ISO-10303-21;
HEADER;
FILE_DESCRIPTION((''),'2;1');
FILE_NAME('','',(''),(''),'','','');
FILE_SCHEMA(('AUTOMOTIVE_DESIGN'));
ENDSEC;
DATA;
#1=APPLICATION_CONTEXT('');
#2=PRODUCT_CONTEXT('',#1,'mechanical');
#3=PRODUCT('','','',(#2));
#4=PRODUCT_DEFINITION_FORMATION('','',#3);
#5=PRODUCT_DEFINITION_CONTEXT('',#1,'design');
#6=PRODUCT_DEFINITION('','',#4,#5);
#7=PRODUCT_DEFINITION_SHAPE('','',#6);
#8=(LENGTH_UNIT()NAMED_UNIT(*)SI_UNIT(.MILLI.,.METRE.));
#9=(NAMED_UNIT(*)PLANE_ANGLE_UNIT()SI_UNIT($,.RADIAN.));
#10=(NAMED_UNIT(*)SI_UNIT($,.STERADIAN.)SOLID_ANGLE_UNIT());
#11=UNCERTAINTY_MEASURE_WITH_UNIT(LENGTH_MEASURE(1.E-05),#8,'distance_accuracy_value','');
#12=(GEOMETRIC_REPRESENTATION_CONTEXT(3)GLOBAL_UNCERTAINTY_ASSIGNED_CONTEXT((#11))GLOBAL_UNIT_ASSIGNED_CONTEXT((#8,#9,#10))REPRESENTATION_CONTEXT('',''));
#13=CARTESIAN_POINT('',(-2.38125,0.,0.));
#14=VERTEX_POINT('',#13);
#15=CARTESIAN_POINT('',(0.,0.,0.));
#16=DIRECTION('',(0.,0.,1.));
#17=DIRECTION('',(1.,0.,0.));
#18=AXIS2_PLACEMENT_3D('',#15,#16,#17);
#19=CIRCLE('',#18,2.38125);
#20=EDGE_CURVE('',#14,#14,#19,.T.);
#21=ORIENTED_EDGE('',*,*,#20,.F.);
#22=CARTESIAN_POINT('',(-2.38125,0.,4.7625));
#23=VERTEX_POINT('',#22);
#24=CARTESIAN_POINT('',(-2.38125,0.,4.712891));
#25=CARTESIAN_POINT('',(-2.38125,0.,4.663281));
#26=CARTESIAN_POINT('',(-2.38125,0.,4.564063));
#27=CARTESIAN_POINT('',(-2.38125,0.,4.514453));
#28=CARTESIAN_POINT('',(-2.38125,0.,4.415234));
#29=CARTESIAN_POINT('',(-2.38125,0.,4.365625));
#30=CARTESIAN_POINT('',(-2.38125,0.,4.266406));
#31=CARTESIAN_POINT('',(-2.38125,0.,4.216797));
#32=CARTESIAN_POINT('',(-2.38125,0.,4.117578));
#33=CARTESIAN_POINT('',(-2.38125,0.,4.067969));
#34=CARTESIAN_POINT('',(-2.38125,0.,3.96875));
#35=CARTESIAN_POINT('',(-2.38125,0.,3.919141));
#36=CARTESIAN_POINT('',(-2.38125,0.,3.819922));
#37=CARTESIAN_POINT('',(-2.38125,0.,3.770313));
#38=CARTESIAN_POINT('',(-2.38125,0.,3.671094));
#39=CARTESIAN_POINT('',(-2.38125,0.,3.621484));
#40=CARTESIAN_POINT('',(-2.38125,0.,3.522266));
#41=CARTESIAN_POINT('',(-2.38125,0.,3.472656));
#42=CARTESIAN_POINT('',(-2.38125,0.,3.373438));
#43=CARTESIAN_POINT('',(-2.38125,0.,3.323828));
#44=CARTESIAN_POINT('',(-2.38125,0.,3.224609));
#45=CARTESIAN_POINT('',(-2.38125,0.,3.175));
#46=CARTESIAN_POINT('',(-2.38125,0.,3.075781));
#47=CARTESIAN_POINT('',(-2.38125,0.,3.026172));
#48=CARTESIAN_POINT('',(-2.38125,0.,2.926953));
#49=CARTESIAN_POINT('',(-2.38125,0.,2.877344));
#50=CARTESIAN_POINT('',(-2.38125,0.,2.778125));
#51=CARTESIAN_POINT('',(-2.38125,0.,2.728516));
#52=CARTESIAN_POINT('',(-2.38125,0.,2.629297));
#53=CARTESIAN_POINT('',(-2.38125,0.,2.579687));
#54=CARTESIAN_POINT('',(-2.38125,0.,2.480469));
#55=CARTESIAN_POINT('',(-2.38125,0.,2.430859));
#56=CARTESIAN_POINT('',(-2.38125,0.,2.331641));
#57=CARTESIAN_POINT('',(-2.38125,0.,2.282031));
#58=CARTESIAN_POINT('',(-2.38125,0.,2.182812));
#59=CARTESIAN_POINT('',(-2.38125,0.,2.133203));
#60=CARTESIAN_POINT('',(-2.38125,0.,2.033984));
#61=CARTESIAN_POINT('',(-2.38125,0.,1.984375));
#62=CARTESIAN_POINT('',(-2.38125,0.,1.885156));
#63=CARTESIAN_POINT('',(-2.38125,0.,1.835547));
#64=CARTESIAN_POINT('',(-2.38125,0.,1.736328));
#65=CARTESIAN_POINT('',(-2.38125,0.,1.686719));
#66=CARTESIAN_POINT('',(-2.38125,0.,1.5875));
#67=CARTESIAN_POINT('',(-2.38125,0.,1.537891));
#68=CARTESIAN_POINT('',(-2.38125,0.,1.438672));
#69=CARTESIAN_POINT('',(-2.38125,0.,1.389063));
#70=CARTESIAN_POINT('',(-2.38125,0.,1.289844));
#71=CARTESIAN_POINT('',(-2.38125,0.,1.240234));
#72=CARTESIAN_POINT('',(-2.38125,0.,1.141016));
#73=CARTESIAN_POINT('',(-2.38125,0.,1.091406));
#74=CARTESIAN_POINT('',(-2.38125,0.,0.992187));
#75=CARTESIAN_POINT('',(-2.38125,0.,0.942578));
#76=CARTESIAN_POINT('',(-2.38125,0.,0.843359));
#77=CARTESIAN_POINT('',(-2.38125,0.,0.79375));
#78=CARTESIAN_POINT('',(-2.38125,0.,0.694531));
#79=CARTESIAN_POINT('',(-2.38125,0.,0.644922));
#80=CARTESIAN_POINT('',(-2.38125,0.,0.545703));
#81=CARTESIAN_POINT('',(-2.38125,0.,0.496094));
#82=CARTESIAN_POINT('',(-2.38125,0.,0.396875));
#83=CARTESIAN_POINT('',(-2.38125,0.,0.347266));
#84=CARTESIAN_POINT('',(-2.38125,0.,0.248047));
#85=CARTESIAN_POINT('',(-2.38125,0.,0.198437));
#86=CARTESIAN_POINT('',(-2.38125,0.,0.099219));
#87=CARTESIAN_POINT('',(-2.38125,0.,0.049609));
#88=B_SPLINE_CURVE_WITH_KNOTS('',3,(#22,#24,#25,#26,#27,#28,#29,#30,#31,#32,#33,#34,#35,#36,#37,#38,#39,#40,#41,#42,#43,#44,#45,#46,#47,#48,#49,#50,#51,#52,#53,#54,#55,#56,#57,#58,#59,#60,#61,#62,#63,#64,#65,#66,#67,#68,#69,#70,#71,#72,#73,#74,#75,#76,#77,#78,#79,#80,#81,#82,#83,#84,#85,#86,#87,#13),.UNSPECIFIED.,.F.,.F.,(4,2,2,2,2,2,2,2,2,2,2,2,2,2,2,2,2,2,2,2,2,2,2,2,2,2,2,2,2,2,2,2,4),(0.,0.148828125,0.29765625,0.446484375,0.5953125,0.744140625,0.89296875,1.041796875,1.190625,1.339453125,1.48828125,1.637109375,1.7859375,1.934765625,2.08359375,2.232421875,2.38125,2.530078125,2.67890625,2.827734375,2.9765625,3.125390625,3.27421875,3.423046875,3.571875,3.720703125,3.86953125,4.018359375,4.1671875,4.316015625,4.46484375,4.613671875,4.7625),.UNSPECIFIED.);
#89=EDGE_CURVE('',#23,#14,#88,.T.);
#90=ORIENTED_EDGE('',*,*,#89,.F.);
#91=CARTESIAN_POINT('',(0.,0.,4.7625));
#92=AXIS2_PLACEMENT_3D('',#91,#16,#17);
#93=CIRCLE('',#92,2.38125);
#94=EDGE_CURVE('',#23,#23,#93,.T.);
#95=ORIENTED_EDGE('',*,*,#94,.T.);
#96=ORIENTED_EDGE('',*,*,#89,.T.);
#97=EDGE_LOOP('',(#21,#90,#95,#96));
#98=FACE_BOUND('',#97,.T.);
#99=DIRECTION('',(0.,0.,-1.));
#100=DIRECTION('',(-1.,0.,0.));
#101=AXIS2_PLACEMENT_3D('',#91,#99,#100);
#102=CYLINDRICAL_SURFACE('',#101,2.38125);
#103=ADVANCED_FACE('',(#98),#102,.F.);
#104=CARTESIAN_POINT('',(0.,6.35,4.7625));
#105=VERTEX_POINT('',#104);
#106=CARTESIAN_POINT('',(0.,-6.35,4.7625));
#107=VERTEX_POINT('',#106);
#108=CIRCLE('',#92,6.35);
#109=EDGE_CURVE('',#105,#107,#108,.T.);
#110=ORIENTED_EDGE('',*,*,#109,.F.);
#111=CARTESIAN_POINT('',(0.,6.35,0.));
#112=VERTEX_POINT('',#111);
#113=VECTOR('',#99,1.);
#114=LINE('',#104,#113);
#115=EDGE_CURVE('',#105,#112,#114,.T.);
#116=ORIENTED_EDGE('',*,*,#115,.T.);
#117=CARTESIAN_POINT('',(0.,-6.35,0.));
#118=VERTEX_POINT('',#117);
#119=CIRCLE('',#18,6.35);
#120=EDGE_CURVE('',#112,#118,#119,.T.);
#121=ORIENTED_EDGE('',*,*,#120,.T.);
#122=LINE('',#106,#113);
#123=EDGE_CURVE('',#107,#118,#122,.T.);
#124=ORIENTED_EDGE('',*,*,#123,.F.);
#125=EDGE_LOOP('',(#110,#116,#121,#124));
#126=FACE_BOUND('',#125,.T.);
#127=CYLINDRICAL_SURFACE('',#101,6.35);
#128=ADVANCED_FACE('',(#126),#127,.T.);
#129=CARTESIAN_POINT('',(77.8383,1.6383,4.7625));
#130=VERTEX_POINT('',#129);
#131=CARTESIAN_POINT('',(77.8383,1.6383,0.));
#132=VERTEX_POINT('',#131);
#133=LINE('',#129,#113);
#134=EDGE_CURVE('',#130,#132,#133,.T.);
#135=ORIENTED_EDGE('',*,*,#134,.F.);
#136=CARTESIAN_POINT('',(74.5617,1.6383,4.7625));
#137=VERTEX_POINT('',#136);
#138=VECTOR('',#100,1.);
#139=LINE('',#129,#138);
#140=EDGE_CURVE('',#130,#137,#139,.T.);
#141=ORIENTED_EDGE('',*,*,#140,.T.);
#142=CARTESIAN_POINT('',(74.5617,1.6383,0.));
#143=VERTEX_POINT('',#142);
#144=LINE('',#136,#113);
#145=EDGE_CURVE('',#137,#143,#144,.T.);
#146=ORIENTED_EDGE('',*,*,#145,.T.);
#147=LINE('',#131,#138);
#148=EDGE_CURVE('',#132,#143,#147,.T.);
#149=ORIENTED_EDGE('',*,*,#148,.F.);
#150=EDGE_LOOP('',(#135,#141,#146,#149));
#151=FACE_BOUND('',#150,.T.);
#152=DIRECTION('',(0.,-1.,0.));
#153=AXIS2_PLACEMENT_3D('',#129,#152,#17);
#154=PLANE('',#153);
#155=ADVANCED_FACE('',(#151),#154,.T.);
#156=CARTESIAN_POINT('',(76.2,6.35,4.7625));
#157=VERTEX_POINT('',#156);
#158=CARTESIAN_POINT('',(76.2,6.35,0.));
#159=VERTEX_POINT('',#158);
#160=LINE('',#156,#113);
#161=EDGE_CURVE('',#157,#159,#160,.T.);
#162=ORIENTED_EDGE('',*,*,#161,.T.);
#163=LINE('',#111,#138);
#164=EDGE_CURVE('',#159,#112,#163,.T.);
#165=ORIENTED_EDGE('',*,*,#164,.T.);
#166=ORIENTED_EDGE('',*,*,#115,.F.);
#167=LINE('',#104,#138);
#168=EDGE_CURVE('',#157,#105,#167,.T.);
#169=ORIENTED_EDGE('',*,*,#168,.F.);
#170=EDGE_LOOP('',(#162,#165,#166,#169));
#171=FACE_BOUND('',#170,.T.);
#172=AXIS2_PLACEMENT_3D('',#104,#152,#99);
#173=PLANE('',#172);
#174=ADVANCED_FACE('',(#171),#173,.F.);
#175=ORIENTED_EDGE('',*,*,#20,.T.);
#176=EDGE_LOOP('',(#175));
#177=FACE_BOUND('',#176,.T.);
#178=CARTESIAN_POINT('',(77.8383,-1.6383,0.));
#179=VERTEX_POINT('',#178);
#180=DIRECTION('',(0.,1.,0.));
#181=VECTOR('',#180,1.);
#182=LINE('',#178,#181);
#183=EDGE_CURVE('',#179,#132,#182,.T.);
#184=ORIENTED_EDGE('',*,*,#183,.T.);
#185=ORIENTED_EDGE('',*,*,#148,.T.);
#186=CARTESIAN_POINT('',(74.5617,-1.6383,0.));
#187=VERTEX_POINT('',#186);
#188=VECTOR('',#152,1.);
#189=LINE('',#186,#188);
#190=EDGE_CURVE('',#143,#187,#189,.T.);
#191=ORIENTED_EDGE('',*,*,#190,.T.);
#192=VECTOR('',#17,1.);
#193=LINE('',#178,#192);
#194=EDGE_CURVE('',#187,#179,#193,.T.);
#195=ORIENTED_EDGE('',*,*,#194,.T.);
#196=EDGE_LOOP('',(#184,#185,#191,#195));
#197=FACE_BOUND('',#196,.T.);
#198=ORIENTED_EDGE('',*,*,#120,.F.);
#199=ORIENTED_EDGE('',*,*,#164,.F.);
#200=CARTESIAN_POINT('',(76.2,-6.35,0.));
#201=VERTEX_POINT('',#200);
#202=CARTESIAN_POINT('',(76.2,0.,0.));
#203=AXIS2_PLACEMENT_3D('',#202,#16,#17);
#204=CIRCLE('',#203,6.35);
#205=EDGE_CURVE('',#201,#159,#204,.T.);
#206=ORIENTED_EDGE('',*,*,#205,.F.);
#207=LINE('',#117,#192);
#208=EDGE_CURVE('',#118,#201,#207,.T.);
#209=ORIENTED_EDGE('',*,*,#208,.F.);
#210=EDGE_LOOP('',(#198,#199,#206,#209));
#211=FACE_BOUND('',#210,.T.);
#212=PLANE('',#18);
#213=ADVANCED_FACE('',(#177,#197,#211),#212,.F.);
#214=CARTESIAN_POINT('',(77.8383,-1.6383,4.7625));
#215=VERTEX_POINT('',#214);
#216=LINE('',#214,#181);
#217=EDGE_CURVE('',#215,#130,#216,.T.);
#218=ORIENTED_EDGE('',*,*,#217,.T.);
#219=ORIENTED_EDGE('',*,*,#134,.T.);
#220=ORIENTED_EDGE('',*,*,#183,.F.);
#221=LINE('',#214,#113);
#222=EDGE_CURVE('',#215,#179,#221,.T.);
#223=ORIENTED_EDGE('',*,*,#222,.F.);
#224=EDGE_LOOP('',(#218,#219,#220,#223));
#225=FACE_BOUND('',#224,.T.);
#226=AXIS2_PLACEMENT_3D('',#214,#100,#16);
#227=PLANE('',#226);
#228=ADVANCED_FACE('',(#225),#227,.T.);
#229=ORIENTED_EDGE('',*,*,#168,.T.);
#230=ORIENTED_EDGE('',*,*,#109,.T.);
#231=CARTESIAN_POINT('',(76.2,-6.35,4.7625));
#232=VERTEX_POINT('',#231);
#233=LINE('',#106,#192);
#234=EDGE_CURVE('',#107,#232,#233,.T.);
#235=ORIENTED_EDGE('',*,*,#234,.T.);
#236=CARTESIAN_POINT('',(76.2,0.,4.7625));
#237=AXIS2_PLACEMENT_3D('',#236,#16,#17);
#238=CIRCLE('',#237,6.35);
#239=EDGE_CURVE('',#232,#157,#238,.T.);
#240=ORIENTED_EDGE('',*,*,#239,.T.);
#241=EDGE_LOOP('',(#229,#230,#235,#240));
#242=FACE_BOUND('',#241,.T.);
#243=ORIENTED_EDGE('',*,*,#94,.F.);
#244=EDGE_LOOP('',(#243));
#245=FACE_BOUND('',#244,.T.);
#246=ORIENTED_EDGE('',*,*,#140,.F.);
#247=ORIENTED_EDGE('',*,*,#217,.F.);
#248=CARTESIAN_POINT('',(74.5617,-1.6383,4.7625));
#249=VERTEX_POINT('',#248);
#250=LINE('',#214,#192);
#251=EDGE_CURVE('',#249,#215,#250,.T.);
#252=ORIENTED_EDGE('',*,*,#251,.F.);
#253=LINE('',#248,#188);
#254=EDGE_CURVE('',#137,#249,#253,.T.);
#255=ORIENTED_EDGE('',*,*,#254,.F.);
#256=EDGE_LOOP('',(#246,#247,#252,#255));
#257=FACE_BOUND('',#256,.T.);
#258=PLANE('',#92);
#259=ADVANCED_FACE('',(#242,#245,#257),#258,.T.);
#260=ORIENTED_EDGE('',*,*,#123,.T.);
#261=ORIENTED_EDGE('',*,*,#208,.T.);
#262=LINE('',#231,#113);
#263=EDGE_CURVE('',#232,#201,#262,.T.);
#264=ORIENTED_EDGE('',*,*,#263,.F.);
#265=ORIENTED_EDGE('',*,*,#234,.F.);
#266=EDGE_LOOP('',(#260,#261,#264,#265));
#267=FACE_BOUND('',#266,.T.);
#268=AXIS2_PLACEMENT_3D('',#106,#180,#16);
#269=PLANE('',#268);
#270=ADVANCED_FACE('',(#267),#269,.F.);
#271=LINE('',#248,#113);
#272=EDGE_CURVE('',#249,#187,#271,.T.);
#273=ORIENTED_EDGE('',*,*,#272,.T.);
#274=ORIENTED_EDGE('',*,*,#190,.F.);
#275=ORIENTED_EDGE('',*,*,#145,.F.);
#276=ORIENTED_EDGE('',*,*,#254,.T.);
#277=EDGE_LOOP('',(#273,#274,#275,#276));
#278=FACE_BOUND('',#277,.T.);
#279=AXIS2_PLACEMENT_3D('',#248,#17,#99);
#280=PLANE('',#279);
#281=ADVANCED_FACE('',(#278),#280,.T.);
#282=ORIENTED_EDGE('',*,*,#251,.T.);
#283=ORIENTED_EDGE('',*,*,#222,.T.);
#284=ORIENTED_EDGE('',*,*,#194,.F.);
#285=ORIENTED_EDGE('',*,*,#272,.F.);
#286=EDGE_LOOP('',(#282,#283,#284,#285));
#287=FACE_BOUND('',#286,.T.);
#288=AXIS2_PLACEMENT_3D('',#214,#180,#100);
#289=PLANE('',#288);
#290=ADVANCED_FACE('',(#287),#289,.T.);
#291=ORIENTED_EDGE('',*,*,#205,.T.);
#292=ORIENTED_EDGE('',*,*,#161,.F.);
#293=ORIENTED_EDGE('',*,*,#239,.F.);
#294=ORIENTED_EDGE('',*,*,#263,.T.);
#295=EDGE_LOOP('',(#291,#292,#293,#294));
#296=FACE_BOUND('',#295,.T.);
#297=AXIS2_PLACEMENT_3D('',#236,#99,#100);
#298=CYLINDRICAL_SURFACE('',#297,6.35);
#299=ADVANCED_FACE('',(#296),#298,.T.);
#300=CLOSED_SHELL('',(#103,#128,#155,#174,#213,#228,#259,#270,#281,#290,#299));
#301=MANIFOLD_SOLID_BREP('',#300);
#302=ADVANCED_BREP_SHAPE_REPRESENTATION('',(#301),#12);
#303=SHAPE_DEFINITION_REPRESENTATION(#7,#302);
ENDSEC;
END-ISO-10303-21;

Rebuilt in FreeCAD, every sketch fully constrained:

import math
import FreeCAD as App
import Part
import Sketcher

V = App.Vector
Q = App.Units.Quantity

doc = App.newDocument("Part")
body = doc.addObject("PartDesign::Body", "Body")

# Sketch on XY plane
sketch1 = body.newObject("Sketcher::SketchObject", "Sketch")
sketch1.AttachmentSupport = (doc.getObject("XY_Plane"), [""])
sketch1.MapMode = "FlatFace"
sketch1.addGeometry([
    Part.LineSegment(V(76.2, 6.3, 0), V(0, 6.3, 0)),  # 0
    Part.ArcOfCircle(Part.Circle(V(0, 0, 0), V(0, 0, 1), 6.3), math.radians(90), math.radians(270)),  # 1
    Part.LineSegment(V(0, -6.3, 0), V(76.2, -6.3, 0)),  # 2
    Part.ArcOfCircle(Part.Circle(V(76.2, 0, 0), V(0, 0, 1), 6.3), math.radians(-90), math.radians(90)),  # 3
    Part.LineSegment(V(74.6, -1.6, 0), V(74.6, 1.6, 0)),  # 4
    Part.LineSegment(V(74.6, 1.6, 0), V(77.8, 1.6, 0)),  # 5
    Part.LineSegment(V(77.8, 1.6, 0), V(77.8, -1.6, 0)),  # 6
    Part.LineSegment(V(77.8, -1.6, 0), V(74.6, -1.6, 0)),  # 7
    Part.Circle(V(0, 0, 0), V(0, 0, 1), 2.4),  # 8
], False)
sketch1.addConstraint([
    Sketcher.Constraint("Tangent", 0, 2, 1, 1),
    Sketcher.Constraint("Tangent", 1, 2, 2, 1),
    Sketcher.Constraint("Tangent", 2, 2, 3, 1),
    Sketcher.Constraint("Tangent", 3, 2, 0, 1),
    Sketcher.Constraint("Coincident", 4, 2, 5, 1),
    Sketcher.Constraint("Coincident", 5, 2, 6, 1),
    Sketcher.Constraint("Coincident", 6, 2, 7, 1),
    Sketcher.Constraint("Coincident", 7, 2, 4, 1),
    Sketcher.Constraint("Horizontal", 0),
    Sketcher.Constraint("Horizontal", 2),
    Sketcher.Constraint("Vertical", 4),
    Sketcher.Constraint("Horizontal", 5),
    Sketcher.Constraint("Vertical", 6),
    Sketcher.Constraint("Horizontal", 7),
    Sketcher.Constraint("Coincident", 1, 3, -1, 1),
    Sketcher.Constraint("Coincident", 8, 3, -1, 1),
    Sketcher.Constraint("Equal", 7, 4),
    Sketcher.Constraint("DistanceX", 0, 2, 0, 1, Q("3 in")),
    Sketcher.Constraint("Radius", 1, Q("0.25 in")),
    Sketcher.Constraint("Diameter", 8, Q("0.1875 in")),
    Sketcher.Constraint("DistanceX", 5, 1, 5, 2, Q("0.129 in")),
    Sketcher.Constraint("DistanceX", -1, 1, 4, 2, Q("2.9355 in")),
    Sketcher.Constraint("DistanceY", -1, 1, 4, 2, Q("0.0645 in")),
])
pad1 = body.newObject("PartDesign::Pad", "Pad")
pad1.Profile = sketch1
pad1.Length = Q("0.1875 in")

doc.recompute()
